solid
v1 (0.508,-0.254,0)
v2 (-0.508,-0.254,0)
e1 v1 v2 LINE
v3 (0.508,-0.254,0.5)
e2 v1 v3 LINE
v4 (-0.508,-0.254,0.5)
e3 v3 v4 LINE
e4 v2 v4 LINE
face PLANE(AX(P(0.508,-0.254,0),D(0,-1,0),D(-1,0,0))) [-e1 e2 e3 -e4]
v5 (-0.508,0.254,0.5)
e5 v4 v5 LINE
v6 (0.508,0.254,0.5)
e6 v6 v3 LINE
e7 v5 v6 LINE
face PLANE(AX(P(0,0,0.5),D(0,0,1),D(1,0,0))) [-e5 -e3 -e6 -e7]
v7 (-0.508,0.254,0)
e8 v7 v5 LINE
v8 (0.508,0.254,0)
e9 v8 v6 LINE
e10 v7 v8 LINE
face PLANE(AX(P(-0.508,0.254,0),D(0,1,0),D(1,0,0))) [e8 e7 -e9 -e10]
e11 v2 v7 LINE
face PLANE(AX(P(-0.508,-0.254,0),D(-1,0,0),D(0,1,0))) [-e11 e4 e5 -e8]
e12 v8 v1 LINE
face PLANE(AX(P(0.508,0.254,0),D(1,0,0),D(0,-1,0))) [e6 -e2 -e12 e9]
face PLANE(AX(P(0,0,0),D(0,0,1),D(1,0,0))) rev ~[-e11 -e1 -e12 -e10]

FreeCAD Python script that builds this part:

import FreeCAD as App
import Part
import Sketcher
Q = App.Units.Quantity

doc = App.newDocument("Part")
params = doc.addObject("Spreadsheet::Sheet", "Params")
for row, (alias, value) in enumerate([
    ("sketch1_width", "0.04 in"),
    ("sketch1_height", "0.02 in"),
    ("pad1_length", "0.5 mm"),
], start=1):
    params.set(f"A{row}", alias)
    params.set(f"B{row}", "=" + value)
    params.setAlias(f"B{row}", alias)

body = doc.addObject("PartDesign::Body", "Body")

# Sketch on XY plane
sketch1 = body.newObject("Sketcher::SketchObject", "Sketch")
sketch1.AttachmentSupport = (doc.getObject("XY_Plane"), [""])
sketch1.MapMode = "FlatFace"
sketch1.addGeometry(Part.LineSegment(App.Vector(-0.5, -0.3, 0), App.Vector(0.5, -0.3, 0)), False)
sketch1.addGeometry(Part.LineSegment(App.Vector(0.5, -0.3, 0), App.Vector(0.5, 0.3, 0)), False)
sketch1.addGeometry(Part.LineSegment(App.Vector(0.5, 0.3, 0), App.Vector(-0.5, 0.3, 0)), False)
sketch1.addGeometry(Part.LineSegment(App.Vector(-0.5, 0.3, 0), App.Vector(-0.5, -0.3, 0)), False)
sketch1.addConstraint(Sketcher.Constraint("Coincident", 0, 2, 1, 1))
sketch1.addConstraint(Sketcher.Constraint("Coincident", 1, 2, 2, 1))
sketch1.addConstraint(Sketcher.Constraint("Coincident", 2, 2, 3, 1))
sketch1.addConstraint(Sketcher.Constraint("Coincident", 3, 2, 0, 1))
sketch1.addConstraint(Sketcher.Constraint("Horizontal", 0))
sketch1.addConstraint(Sketcher.Constraint("Vertical", 1))
sketch1.addConstraint(Sketcher.Constraint("Horizontal", 2))
sketch1.addConstraint(Sketcher.Constraint("Vertical", 3))
sketch1.addConstraint(Sketcher.Constraint("Symmetric", 0, 2, 2, 2, -1, 1))
sketch1.addConstraint(Sketcher.Constraint("DistanceX", 0, 1, 0, 2, Q("0.04 in")))
sketch1.addConstraint(Sketcher.Constraint("DistanceY", 1, 1, 1, 2, Q("0.02 in")))
sketch1.setExpression("Constraints[9]", "Params.sketch1_width")
sketch1.setExpression("Constraints[10]", "Params.sketch1_height")
pad1 = body.newObject("PartDesign::Pad", "Pad")
pad1.Profile = sketch1
pad1.setExpression("Length", "Params.pad1_length")

doc.recompute()
